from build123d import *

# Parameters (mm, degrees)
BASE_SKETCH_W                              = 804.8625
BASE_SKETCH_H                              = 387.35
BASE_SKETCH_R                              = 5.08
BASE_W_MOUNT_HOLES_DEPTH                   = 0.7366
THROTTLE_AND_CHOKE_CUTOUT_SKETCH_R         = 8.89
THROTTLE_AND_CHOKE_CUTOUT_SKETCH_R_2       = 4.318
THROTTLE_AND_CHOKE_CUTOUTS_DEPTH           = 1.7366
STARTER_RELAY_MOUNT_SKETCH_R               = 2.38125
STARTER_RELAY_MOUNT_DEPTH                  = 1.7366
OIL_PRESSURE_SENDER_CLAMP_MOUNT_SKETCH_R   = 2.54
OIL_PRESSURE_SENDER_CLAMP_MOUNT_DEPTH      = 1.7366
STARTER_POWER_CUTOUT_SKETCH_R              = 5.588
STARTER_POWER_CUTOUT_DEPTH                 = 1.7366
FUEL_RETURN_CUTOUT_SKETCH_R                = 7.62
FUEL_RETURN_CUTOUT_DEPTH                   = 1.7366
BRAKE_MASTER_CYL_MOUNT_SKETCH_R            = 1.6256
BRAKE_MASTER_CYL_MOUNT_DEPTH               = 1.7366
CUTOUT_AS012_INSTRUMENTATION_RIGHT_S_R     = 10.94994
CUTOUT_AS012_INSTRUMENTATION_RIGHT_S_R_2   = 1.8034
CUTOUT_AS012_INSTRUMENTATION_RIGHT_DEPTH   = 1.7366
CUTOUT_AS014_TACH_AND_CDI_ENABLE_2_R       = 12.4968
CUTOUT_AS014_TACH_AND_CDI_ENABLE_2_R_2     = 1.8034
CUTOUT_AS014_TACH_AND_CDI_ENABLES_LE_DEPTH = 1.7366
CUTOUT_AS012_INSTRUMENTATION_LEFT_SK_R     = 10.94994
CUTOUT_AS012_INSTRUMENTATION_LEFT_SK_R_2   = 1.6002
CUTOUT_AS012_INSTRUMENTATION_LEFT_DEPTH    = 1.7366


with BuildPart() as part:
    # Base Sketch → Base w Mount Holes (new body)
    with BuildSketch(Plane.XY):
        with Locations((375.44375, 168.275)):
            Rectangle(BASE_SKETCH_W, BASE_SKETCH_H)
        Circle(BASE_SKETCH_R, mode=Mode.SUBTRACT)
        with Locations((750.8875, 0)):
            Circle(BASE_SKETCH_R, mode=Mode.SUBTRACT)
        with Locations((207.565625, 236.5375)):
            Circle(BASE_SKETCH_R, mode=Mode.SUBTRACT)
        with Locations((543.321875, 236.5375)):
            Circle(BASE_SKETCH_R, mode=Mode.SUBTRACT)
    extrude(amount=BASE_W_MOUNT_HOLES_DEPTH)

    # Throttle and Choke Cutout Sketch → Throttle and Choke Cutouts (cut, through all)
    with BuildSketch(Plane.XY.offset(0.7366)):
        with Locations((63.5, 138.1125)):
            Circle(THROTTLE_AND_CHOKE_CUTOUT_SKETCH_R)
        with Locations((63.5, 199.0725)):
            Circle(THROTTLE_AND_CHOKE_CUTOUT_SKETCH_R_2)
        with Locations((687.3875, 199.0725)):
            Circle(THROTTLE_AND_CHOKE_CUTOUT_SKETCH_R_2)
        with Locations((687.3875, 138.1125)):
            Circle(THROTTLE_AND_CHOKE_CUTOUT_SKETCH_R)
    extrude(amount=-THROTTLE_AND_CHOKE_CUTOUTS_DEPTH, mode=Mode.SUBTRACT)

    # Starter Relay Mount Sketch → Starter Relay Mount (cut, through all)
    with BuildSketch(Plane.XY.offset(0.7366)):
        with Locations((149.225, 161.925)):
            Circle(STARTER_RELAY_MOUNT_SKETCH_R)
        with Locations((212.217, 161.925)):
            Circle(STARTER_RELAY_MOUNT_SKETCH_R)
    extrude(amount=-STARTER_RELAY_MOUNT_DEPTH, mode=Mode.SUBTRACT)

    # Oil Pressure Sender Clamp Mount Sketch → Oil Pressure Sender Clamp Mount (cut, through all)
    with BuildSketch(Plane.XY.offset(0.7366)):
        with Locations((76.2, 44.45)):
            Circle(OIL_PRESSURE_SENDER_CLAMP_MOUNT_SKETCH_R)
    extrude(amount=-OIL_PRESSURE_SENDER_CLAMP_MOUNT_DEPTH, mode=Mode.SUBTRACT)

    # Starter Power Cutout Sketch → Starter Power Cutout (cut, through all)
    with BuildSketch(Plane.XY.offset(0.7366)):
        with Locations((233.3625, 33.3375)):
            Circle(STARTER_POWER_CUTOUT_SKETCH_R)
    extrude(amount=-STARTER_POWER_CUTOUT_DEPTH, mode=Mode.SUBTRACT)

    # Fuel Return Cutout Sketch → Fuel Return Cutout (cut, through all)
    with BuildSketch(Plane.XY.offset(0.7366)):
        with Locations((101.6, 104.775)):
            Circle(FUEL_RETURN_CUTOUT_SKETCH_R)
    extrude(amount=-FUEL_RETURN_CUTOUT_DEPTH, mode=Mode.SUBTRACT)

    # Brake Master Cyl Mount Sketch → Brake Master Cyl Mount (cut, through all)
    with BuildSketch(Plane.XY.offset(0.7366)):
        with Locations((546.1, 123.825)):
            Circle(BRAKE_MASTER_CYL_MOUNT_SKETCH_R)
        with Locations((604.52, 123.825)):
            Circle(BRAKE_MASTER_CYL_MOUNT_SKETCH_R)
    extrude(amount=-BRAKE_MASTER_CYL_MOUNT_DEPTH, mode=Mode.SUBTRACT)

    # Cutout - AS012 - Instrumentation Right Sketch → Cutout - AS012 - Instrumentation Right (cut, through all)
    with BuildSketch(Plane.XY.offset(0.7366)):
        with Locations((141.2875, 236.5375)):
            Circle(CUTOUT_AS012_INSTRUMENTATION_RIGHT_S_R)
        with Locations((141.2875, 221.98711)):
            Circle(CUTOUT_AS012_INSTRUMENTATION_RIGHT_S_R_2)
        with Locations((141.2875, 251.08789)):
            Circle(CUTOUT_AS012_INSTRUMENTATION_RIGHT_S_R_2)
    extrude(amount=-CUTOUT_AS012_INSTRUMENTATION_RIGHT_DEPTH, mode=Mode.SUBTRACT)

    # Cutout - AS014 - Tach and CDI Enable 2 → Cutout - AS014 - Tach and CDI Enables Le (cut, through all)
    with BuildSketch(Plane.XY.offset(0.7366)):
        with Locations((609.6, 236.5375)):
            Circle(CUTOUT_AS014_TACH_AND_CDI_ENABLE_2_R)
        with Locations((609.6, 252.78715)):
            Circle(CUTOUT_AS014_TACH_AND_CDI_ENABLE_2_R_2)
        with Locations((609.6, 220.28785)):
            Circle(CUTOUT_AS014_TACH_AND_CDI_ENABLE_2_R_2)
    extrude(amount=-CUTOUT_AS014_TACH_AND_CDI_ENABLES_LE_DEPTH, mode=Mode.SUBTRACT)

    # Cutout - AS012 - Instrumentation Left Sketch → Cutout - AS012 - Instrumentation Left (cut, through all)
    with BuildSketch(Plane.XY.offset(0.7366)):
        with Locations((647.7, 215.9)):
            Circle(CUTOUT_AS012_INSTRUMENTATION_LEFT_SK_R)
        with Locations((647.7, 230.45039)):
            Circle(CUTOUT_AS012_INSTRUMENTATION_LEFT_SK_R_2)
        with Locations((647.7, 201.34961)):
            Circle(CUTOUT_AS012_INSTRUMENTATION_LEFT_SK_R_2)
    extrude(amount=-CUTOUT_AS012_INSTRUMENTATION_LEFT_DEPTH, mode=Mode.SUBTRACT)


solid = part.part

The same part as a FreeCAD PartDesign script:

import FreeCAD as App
import Part
import Sketcher

V = App.Vector
Q = App.Units.Quantity

doc = App.newDocument("Part")
body = doc.addObject("PartDesign::Body", "Body")

# Sketch on XY plane
sketch1 = body.newObject("Sketcher::SketchObject", "Sketch")
sketch1.AttachmentSupport = (doc.getObject("XY_Plane"), [""])
sketch1.MapMode = "FlatFace"
sketch1.addGeometry([
    Part.LineSegment(V(-26.9875, 361.95, 0), V(-26.9875, -25.4, 0)),  # 0
    Part.LineSegment(V(-26.9875, -25.4, 0), V(777.875, -25.4, 0)),  # 1
    Part.LineSegment(V(777.875, -25.4, 0), V(777.875, 361.95, 0)),  # 2
    Part.LineSegment(V(777.875, 361.95, 0), V(-26.9875, 361.95, 0)),  # 3
    Part.Circle(V(0, 0, 0), V(0, 0, 1), 5.08),  # 4
    Part.Circle(V(750.8875, 0, 0), V(0, 0, 1), 5.08),  # 5
    Part.Circle(V(207.565625, 236.5375, 0), V(0, 0, 1), 5.08),  # 6
    Part.Circle(V(543.321875, 236.5375, 0), V(0, 0, 1), 5.08),  # 7
], False)
sketch1.addConstraint([
    Sketcher.Constraint("Coincident", 0, 2, 1, 1),
    Sketcher.Constraint("Coincident", 1, 2, 2, 1),
    Sketcher.Constraint("Coincident", 2, 2, 3, 1),
    Sketcher.Constraint("Coincident", 3, 2, 0, 1),
    Sketcher.Constraint("Vertical", 0),
    Sketcher.Constraint("Horizontal", 1),
    Sketcher.Constraint("Vertical", 2),
    Sketcher.Constraint("Horizontal", 3),
    Sketcher.Constraint("Coincident", 4, 3, -1, 1),
    Sketcher.Constraint("Equal", 4, 5),
    Sketcher.Constraint("Equal", 5, 6),
    Sketcher.Constraint("Equal", 6, 7),
    Sketcher.Constraint("PointOnObject", 5, 3, -1),
    Sketcher.Constraint("Horizontal", 6, 3, 7, 3),
    Sketcher.Constraint("Diameter", 4, Q("0.4 in")),
    Sketcher.Constraint("DistanceY", 0, 2, -1, 1, Q("1 in")),
    Sketcher.Constraint("DistanceY", 0, 2, 0, 1, Q("15.25 in")),
    Sketcher.Constraint("DistanceX", 1, 1, 1, 2, Q("31.6875 in")),
    Sketcher.Constraint("DistanceX", -1, 1, 5, 3, Q("29.5625 in")),
    Sketcher.Constraint("DistanceX", -1, 1, 6, 3, Q("8.171875 in")),
    Sketcher.Constraint("DistanceY", -1, 1, 6, 3, Q("9.3125 in")),
    Sketcher.Constraint("DistanceX", -1, 1, 7, 3, Q("21.390625 in")),
    Sketcher.Constraint("DistanceX", 0, 2, -1, 1, Q("1.0625 in")),
])
pad1 = body.newObject("PartDesign::Pad", "Pad")
pad1.Profile = sketch1
pad1.Length = Q("0.029 in")

# Sketch on XY plane
sketch2 = body.newObject("Sketcher::SketchObject", "Sketch001")
sketch2.AttachmentSupport = (doc.getObject("XY_Plane"), [""])
sketch2.MapMode = "FlatFace"
sketch2.AttachmentOffset = App.Placement(V(0, 0, 0.029 * 25.4), App.Rotation())
sketch2.addGeometry([
    Part.Circle(V(63.5, 138.1125, 0), V(0, 0, 1), 8.89),
    Part.Circle(V(63.5, 199.0725, 0), V(0, 0, 1), 4.318),
    Part.Circle(V(687.3875, 199.0725, 0), V(0, 0, 1), 4.318),
    Part.Circle(V(687.3875, 138.1125, 0), V(0, 0, 1), 8.89),
], False)
sketch2.addConstraint([
    Sketcher.Constraint("Equal", 1, 2),
    Sketcher.Constraint("Equal", 0, 3),
    Sketcher.Constraint("Horizontal", 1, 3, 2, 3),
    Sketcher.Constraint("Horizontal", 0, 3, 3, 3),
    Sketcher.Constraint("Vertical", 0, 3, 1, 3),
    Sketcher.Constraint("Vertical", 2, 3, 3, 3),
    Sketcher.Constraint("Diameter", 0, Q("0.7 in")),
    Sketcher.Constraint("Diameter", 1, Q("0.34 in")),
    Sketcher.Constraint("DistanceX", -1, 1, 0, 3, Q("2.5 in")),
    Sketcher.Constraint("DistanceY", 0, 3, 1, 3, Q("2.4 in")),
    Sketcher.Constraint("DistanceY", -1, 1, 0, 3, Q("5.4375 in")),
    Sketcher.Constraint("DistanceX", -1, 1, 2, 3, Q("27.0625 in")),
])
pocket1 = body.newObject("PartDesign::Pocket", "Pocket")
pocket1.Profile = sketch2
pocket1.Type = "ThroughAll"

# Sketch on XY plane
sketch3 = body.newObject("Sketcher::SketchObject", "Sketch002")
sketch3.AttachmentSupport = (doc.getObject("XY_Plane"), [""])
sketch3.MapMode = "FlatFace"
sketch3.AttachmentOffset = App.Placement(V(0, 0, 0.029 * 25.4), App.Rotation())
sketch3.addGeometry([
    Part.Circle(V(149.225, 161.925, 0), V(0, 0, 1), 2.38125),
    Part.Circle(V(212.217, 161.925, 0), V(0, 0, 1), 2.38125),
], False)
sketch3.addConstraint([
    Sketcher.Constraint("Equal", 0, 1),
    Sketcher.Constraint("Horizontal", 0, 3, 1, 3),
    Sketcher.Constraint("Diameter", 0, Q("0.1875 in")),
    Sketcher.Constraint("DistanceX", 0, 3, 1, 3, Q("2.48 in")),
    Sketcher.Constraint("DistanceX", -1, 1, 0, 3, Q("5.875 in")),
    Sketcher.Constraint("DistanceY", -1, 1, 0, 3, Q("6.375 in")),
])
pocket2 = body.newObject("PartDesign::Pocket", "Pocket001")
pocket2.Profile = sketch3
pocket2.Type = "ThroughAll"

# Sketch on XY plane
sketch4 = body.newObject("Sketcher::SketchObject", "Sketch003")
sketch4.AttachmentSupport = (doc.getObject("XY_Plane"), [""])
sketch4.MapMode = "FlatFace"
sketch4.AttachmentOffset = App.Placement(V(0, 0, 0.029 * 25.4), App.Rotation())
sketch4.addGeometry(Part.Circle(V(76.2, 44.45, 0), V(0, 0, 1), 2.54), False)
sketch4.addConstraint([
    Sketcher.Constraint("Diameter", 0, Q("0.2 in")),
    Sketcher.Constraint("DistanceX", -1, 1, 0, 3, Q("3 in")),
    Sketcher.Constraint("DistanceY", -1, 1, 0, 3, Q("1.75 in")),
])
pocket3 = body.newObject("PartDesign::Pocket", "Pocket002")
pocket3.Profile = sketch4
pocket3.Type = "ThroughAll"

# Sketch on XY plane
sketch5 = body.newObject("Sketcher::SketchObject", "Sketch004")
sketch5.AttachmentSupport = (doc.getObject("XY_Plane"), [""])
sketch5.MapMode = "FlatFace"
sketch5.AttachmentOffset = App.Placement(V(0, 0, 0.029 * 25.4), App.Rotation())
sketch5.addGeometry(Part.Circle(V(233.3625, 33.3375, 0), V(0, 0, 1), 5.588), False)
sketch5.addConstraint([
    Sketcher.Constraint("Diameter", 0, Q("0.44 in")),
    Sketcher.Constraint("DistanceX", -1, 1, 0, 3, Q("9.1875 in")),
    Sketcher.Constraint("DistanceY", -1, 1, 0, 3, Q("1.3125 in")),
])
pocket4 = body.newObject("PartDesign::Pocket", "Pocket003")
pocket4.Profile = sketch5
pocket4.Type = "ThroughAll"

# Sketch on XY plane
sketch6 = body.newObject("Sketcher::SketchObject", "Sketch005")
sketch6.AttachmentSupport = (doc.getObject("XY_Plane"), [""])
sketch6.MapMode = "FlatFace"
sketch6.AttachmentOffset = App.Placement(V(0, 0, 0.029 * 25.4), App.Rotation())
sketch6.addGeometry(Part.Circle(V(101.6, 104.775, 0), V(0, 0, 1), 7.62), False)
sketch6.addConstraint([
    Sketcher.Constraint("Diameter", 0, Q("0.6 in")),
    Sketcher.Constraint("DistanceX", -1, 1, 0, 3, Q("4 in")),
    Sketcher.Constraint("DistanceY", -1, 1, 0, 3, Q("4.125 in")),
])
pocket5 = body.newObject("PartDesign::Pocket", "Pocket004")
pocket5.Profile = sketch6
pocket5.Type = "ThroughAll"

# Sketch on XY plane
sketch7 = body.newObject("Sketcher::SketchObject", "Sketch006")
sketch7.AttachmentSupport = (doc.getObject("XY_Plane"), [""])
sketch7.MapMode = "FlatFace"
sketch7.AttachmentOffset = App.Placement(V(0, 0, 0.029 * 25.4), App.Rotation())
sketch7.addGeometry([
    Part.Circle(V(546.1, 123.825, 0), V(0, 0, 1), 1.6256),
    Part.Circle(V(604.52, 123.825, 0), V(0, 0, 1), 1.6256),
], False)
sketch7.addConstraint([
    Sketcher.Constraint("Equal", 0, 1),
    Sketcher.Constraint("Horizontal", 0, 3, 1, 3),
    Sketcher.Constraint("Diameter", 0, Q("0.128 in")),
    Sketcher.Constraint("DistanceX", -1, 1, 0, 3, Q("21.5 in")),
    Sketcher.Constraint("DistanceX", -1, 1, 1, 3, Q("23.8 in")),
    Sketcher.Constraint("DistanceY", -1, 1, 0, 3, Q("4.875 in")),
])
pocket6 = body.newObject("PartDesign::Pocket", "Pocket005")
pocket6.Profile = sketch7
pocket6.Type = "ThroughAll"

# Sketch on XY plane
sketch8 = body.newObject("Sketcher::SketchObject", "Sketch007")
sketch8.AttachmentSupport = (doc.getObject("XY_Plane"), [""])
sketch8.MapMode = "FlatFace"
sketch8.AttachmentOffset = App.Placement(V(0, 0, 0.029 * 25.4), App.Rotation())
sketch8.addGeometry([
    Part.Circle(V(141.2875, 236.5375, 0), V(0, 0, 1), 10.94994),
    Part.Circle(V(141.2875, 221.98711, 0), V(0, 0, 1), 1.8034),
    Part.Circle(V(141.2875, 251.08789, 0), V(0, 0, 1), 1.8034),
], False)
sketch8.addConstraint([
    Sketcher.Constraint("Equal", 1, 2),
    Sketcher.Constraint("Vertical", 0, 3, 1, 3),
    Sketcher.Constraint("Vertical", 1, 3, 2, 3),
    Sketcher.Constraint("Diameter", 1, Q("0.142 in")),
    Sketcher.Constraint("Diameter", 0, Q("0.8622 in")),
    Sketcher.Constraint("DistanceX", -1, 1, 0, 3, Q("5.5625 in")),
    Sketcher.Constraint("DistanceY", -1, 1, 0, 3, Q("9.3125 in")),
    Sketcher.Constraint("DistanceY", 1, 3, 2, 3, Q("1.1457 in")),
    Sketcher.Constraint("DistanceY", -1, 1, 1, 3, Q("221.98711 mm")),
])
pocket7 = body.newObject("PartDesign::Pocket", "Pocket006")
pocket7.Profile = sketch8
pocket7.Type = "ThroughAll"

# Sketch on XY plane
sketch9 = body.newObject("Sketcher::SketchObject", "Sketch008")
sketch9.AttachmentSupport = (doc.getObject("XY_Plane"), [""])
sketch9.MapMode = "FlatFace"
sketch9.AttachmentOffset = App.Placement(V(0, 0, 0.029 * 25.4), App.Rotation())
sketch9.addGeometry([
    Part.Circle(V(609.6, 236.5375, 0), V(0, 0, 1), 12.4968),
    Part.Circle(V(609.6, 252.78715, 0), V(0, 0, 1), 1.8034),
    Part.Circle(V(609.6, 220.28785, 0), V(0, 0, 1), 1.8034),
], False)
sketch9.addConstraint([
    Sketcher.Constraint("Equal", 1, 2),
    Sketcher.Constraint("Vertical", 0, 3, 1, 3),
    Sketcher.Constraint("Vertical", 1, 3, 2, 3),
    Sketcher.Constraint("Diameter", 0, Q("0.984 in")),
    Sketcher.Constraint("Diameter", 1, Q("0.142 in")),
    Sketcher.Constraint("DistanceX", -1, 1, 0, 3, Q("24 in")),
    Sketcher.Constraint("DistanceY", -1, 1, 0, 3, Q("9.3125 in")),
    Sketcher.Constraint("DistanceY", 2, 3, 1, 3, Q("1.2795 in")),
    Sketcher.Constraint("DistanceY", -1, 1, 1, 3, Q("252.78715 mm")),
])
pocket8 = body.newObject("PartDesign::Pocket", "Pocket007")
pocket8.Profile = sketch9
pocket8.Type = "ThroughAll"

# Sketch on XY plane
sketch10 = body.newObject("Sketcher::SketchObject", "Sketch009")
sketch10.AttachmentSupport = (doc.getObject("XY_Plane"), [""])
sketch10.MapMode = "FlatFace"
sketch10.AttachmentOffset = App.Placement(V(0, 0, 0.029 * 25.4), App.Rotation())
sketch10.addGeometry([
    Part.Circle(V(647.7, 215.9, 0), V(0, 0, 1), 10.94994),
    Part.Circle(V(647.7, 230.45039, 0), V(0, 0, 1), 1.6002),
    Part.Circle(V(647.7, 201.34961, 0), V(0, 0, 1), 1.6002),
], False)
sketch10.addConstraint([
    Sketcher.Constraint("Equal", 1, 2),
    Sketcher.Constraint("Vertical", 0, 3, 1, 3),
    Sketcher.Constraint("Vertical", 1, 3, 2, 3),
    Sketcher.Constraint("Diameter", 1, Q("0.126 in")),
    Sketcher.Constraint("Diameter", 0, Q("0.8622 in")),
    Sketcher.Constraint("DistanceX", -1, 1, 0, 3, Q("25.5 in")),
    Sketcher.Constraint("DistanceY", -1, 1, 0, 3, Q("8.5 in")),
    Sketcher.Constraint("DistanceY", 2, 3, 1, 3, Q("1.1457 in")),
    Sketcher.Constraint("DistanceY", -1, 1, 1, 3, Q("230.45039 mm")),
])
pocket9 = body.newObject("PartDesign::Pocket", "Pocket008")
pocket9.Profile = sketch10
pocket9.Type = "ThroughAll"

doc.recompute()
